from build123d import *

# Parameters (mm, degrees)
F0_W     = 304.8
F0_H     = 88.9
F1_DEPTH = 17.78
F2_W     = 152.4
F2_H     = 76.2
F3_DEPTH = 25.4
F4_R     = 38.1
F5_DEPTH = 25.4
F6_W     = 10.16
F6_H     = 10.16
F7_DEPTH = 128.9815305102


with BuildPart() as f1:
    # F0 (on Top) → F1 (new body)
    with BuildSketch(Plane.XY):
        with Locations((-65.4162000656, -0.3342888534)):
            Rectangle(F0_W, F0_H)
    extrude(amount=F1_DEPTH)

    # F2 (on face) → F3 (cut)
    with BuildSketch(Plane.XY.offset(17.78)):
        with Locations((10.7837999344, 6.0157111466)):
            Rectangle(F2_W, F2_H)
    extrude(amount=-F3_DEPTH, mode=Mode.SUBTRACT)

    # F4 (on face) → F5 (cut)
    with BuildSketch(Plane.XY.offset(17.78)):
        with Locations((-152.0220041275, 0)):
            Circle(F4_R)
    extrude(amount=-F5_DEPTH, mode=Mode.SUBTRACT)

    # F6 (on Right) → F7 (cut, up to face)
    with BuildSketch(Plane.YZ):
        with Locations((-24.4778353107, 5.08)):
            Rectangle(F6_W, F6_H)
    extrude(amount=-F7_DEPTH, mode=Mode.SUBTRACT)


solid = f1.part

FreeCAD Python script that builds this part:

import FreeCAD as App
import Part
import Sketcher
from FreeCAD import Vector
Q = App.Units.Quantity

doc = App.newDocument("Part")
body = doc.addObject("PartDesign::Body", "Body")

# Sketch on XY plane
sketch1 = body.newObject("Sketcher::SketchObject", "Sketch")
sketch1.AttachmentSupport = (doc.getObject("XY_Plane"), [""])
sketch1.MapMode = "FlatFace"
sketch1.addGeometry([
    Part.LineSegment(Vector(-218, 44, 0), Vector(-218, -45, 0)),
    Part.LineSegment(Vector(-218, -45, 0), Vector(87, -45, 0)),
    Part.LineSegment(Vector(87, -45, 0), Vector(87, 44, 0)),
    Part.LineSegment(Vector(87, 44, 0), Vector(-218, 44, 0)),
], False)
sketch1.addConstraint([
    Sketcher.Constraint("Coincident", 0, 2, 1, 1),
    Sketcher.Constraint("Coincident", 1, 2, 2, 1),
    Sketcher.Constraint("Coincident", 2, 2, 3, 1),
    Sketcher.Constraint("Coincident", 3, 2, 0, 1),
    Sketcher.Constraint("Vertical", 0),
    Sketcher.Constraint("Horizontal", 1),
    Sketcher.Constraint("Vertical", 2),
    Sketcher.Constraint("Horizontal", 3),
    Sketcher.Constraint("DistanceX", 1, 1, 1, 2, Q("12 in")),
    Sketcher.Constraint("DistanceY", 0, 2, 0, 1, Q("3.5 in")),
    Sketcher.Constraint("DistanceX", 0, 2, -1, 1, 217.8162),
    Sketcher.Constraint("DistanceY", 0, 2, -1, 1, 44.784289),
])
pad1 = body.newObject("PartDesign::Pad", "Pad")
pad1.Profile = sketch1
pad1.Length = Q("0.7 in")

# Sketch on XY plane
sketch2 = body.newObject("Sketcher::SketchObject", "Sketch001")
sketch2.AttachmentSupport = (doc.getObject("XY_Plane"), [""])
sketch2.MapMode = "FlatFace"
sketch2.AttachmentOffset = App.Placement(Vector(0, 0, 0.7 * 25.4), App.Rotation())
sketch2.addGeometry([
    Part.LineSegment(Vector(-65, 44, 0), Vector(-65, -32, 0)),
    Part.LineSegment(Vector(-65, -32, 0), Vector(87, -32, 0)),
    Part.LineSegment(Vector(87, -32, 0), Vector(87, 44, 0)),
    Part.LineSegment(Vector(87, 44, 0), Vector(-65, 44, 0)),
], False)
sketch2.addConstraint([
    Sketcher.Constraint("Coincident", 0, 2, 1, 1),
    Sketcher.Constraint("Coincident", 1, 2, 2, 1),
    Sketcher.Constraint("Coincident", 2, 2, 3, 1),
    Sketcher.Constraint("Coincident", 3, 2, 0, 1),
    Sketcher.Constraint("Vertical", 0),
    Sketcher.Constraint("Horizontal", 1),
    Sketcher.Constraint("Vertical", 2),
    Sketcher.Constraint("Horizontal", 3),
    Sketcher.Constraint("DistanceX", 1, 1, 1, 2, Q("6 in")),
    Sketcher.Constraint("DistanceY", 0, 2, 0, 1, Q("3 in")),
    Sketcher.Constraint("DistanceX", 0, 2, -1, 1, 65.4162),
    Sketcher.Constraint("DistanceY", 0, 2, -1, 1, 32.084289),
])
pocket1 = body.newObject("PartDesign::Pocket", "Pocket")
pocket1.Profile = sketch2
pocket1.Length = Q("1 in")

# Sketch on XY plane
sketch3 = body.newObject("Sketcher::SketchObject", "Sketch002")
sketch3.AttachmentSupport = (doc.getObject("XY_Plane"), [""])
sketch3.MapMode = "FlatFace"
sketch3.AttachmentOffset = App.Placement(Vector(0, 0, 0.7 * 25.4), App.Rotation())
sketch3.addGeometry(Part.Circle(Vector(-152, 0, 0), Vector(0, 0, 1), 38), False)
sketch3.addConstraint([
    Sketcher.Constraint("PointOnObject", 0, 3, -1),
    Sketcher.Constraint("Diameter", 0, Q("3 in")),
    Sketcher.Constraint("DistanceX", 0, 3, -1, 1, 152.022004),
])
pocket2 = body.newObject("PartDesign::Pocket", "Pocket001")
pocket2.Profile = sketch3
pocket2.Length = Q("1 in")

# Sketch on YZ plane
sketch4 = body.newObject("Sketcher::SketchObject", "Sketch003")
sketch4.AttachmentSupport = (doc.getObject("YZ_Plane"), [""])
sketch4.MapMode = "FlatFace"
sketch4.addGeometry([
    Part.LineSegment(Vector(-30, 10, 0), Vector(-30, 0, 0)),
    Part.LineSegment(Vector(-30, 0, 0), Vector(-19, 0, 0)),
    Part.LineSegment(Vector(-19, 0, 0), Vector(-19, 10, 0)),
    Part.LineSegment(Vector(-19, 10, 0), Vector(-30, 10, 0)),
], False)
sketch4.addConstraint([
    Sketcher.Constraint("Coincident", 0, 2, 1, 1),
    Sketcher.Constraint("Coincident", 1, 2, 2, 1),
    Sketcher.Constraint("Coincident", 2, 2, 3, 1),
    Sketcher.Constraint("Coincident", 3, 2, 0, 1),
    Sketcher.Constraint("Vertical", 0),
    Sketcher.Constraint("Horizontal", 1),
    Sketcher.Constraint("Vertical", 2),
    Sketcher.Constraint("Horizontal", 3),
    Sketcher.Constraint("PointOnObject", 0, 2, -1),
    Sketcher.Constraint("Equal", 3, 0),
    Sketcher.Constraint("DistanceX", 1, 1, 1, 2, Q("0.4 in")),
    Sketcher.Constraint("DistanceX", 0, 2, -1, 1, 29.557835),
])
pocket3 = body.newObject("PartDesign::Pocket", "Pocket002")
pocket3.Profile = sketch4
pocket3.Length = 128.981531

doc.recompute()
